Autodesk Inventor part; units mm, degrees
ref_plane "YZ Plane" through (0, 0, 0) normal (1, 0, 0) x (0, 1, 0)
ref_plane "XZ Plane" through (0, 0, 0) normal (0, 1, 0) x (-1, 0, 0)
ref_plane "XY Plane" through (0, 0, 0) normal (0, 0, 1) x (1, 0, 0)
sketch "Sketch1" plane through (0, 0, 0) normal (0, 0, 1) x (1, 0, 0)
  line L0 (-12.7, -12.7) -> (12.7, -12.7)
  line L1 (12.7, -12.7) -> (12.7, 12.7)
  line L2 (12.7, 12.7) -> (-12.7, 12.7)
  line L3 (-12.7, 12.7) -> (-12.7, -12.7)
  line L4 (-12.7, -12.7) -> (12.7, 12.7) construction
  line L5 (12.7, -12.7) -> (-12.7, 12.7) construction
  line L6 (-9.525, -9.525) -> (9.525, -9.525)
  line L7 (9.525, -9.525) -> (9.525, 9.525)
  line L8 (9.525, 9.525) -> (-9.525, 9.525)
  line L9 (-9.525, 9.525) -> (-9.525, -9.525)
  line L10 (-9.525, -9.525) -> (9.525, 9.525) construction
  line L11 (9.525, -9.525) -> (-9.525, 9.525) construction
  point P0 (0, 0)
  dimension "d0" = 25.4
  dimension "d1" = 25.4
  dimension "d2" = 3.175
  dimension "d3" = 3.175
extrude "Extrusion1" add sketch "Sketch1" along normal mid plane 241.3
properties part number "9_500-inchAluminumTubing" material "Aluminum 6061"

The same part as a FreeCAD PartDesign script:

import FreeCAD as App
import Part
import Sketcher

V = App.Vector
Q = App.Units.Quantity

doc = App.newDocument("Part")
params = doc.addObject("Spreadsheet::Sheet", "Params")
for row, (alias, value) in enumerate([
    ("sketch1_width", "1 in"),
    ("pad1_length", "9.5 in"),
], start=1):
    params.set(f"A{row}", alias)
    params.set(f"B{row}", "=" + value)
    params.setAlias(f"B{row}", alias)

body = doc.addObject("PartDesign::Body", "Body")

sketch1 = body.newObject("Sketcher::SketchObject", "Sketch")
sketch1.AttachmentSupport = (doc.getObject("XY_Plane"), [""])
sketch1.MapMode = "FlatFace"
sketch1.addGeometry([
    Part.LineSegment(V(-13, 13, 0), V(-13, -13, 0)),
    Part.LineSegment(V(-13, -13, 0), V(13, -13, 0)),
    Part.LineSegment(V(13, -13, 0), V(13, 13, 0)),
    Part.LineSegment(V(13, 13, 0), V(-13, 13, 0)),
    Part.LineSegment(V(10, -10, 0), V(-10, -10, 0)),
    Part.LineSegment(V(-10, -10, 0), V(-10, 10, 0)),
    Part.LineSegment(V(-10, 10, 0), V(10, 10, 0)),
    Part.LineSegment(V(10, 10, 0), V(10, -10, 0)),
], False)
sketch1.addConstraint([
    Sketcher.Constraint("Coincident", 0, 2, 1, 1),
    Sketcher.Constraint("Coincident", 1, 2, 2, 1),
    Sketcher.Constraint("Coincident", 2, 2, 3, 1),
    Sketcher.Constraint("Coincident", 3, 2, 0, 1),
    Sketcher.Constraint("Coincident", 4, 2, 5, 1),
    Sketcher.Constraint("Coincident", 5, 2, 6, 1),
    Sketcher.Constraint("Coincident", 6, 2, 7, 1),
    Sketcher.Constraint("Coincident", 7, 2, 4, 1),
    Sketcher.Constraint("Vertical", 0),
    Sketcher.Constraint("Horizontal", 1),
    Sketcher.Constraint("Vertical", 2),
    Sketcher.Constraint("Horizontal", 3),
    Sketcher.Constraint("Horizontal", 4),
    Sketcher.Constraint("Vertical", 5),
    Sketcher.Constraint("Horizontal", 6),
    Sketcher.Constraint("Vertical", 7),
    Sketcher.Constraint("Symmetric", 0, 2, 2, 2, -1, 1),
    Sketcher.Constraint("Symmetric", 4, 2, 6, 2, -1, 1),
    Sketcher.Constraint("Equal", 3, 0),
    Sketcher.Constraint("Equal", 6, 5),
    Sketcher.Constraint("DistanceX", 1, 1, 1, 2, Q("1 in")),
    Sketcher.Constraint("DistanceX", 0, 2, 4, 2, Q("0.125 in")),
])
sketch1.setExpression("Constraints[20]", "Params.sketch1_width")
pad1 = body.newObject("PartDesign::Pad", "Pad")
pad1.Profile = sketch1
pad1.setExpression("Length", "Params.pad1_length")
pad1.Midplane = True

doc.recompute()
